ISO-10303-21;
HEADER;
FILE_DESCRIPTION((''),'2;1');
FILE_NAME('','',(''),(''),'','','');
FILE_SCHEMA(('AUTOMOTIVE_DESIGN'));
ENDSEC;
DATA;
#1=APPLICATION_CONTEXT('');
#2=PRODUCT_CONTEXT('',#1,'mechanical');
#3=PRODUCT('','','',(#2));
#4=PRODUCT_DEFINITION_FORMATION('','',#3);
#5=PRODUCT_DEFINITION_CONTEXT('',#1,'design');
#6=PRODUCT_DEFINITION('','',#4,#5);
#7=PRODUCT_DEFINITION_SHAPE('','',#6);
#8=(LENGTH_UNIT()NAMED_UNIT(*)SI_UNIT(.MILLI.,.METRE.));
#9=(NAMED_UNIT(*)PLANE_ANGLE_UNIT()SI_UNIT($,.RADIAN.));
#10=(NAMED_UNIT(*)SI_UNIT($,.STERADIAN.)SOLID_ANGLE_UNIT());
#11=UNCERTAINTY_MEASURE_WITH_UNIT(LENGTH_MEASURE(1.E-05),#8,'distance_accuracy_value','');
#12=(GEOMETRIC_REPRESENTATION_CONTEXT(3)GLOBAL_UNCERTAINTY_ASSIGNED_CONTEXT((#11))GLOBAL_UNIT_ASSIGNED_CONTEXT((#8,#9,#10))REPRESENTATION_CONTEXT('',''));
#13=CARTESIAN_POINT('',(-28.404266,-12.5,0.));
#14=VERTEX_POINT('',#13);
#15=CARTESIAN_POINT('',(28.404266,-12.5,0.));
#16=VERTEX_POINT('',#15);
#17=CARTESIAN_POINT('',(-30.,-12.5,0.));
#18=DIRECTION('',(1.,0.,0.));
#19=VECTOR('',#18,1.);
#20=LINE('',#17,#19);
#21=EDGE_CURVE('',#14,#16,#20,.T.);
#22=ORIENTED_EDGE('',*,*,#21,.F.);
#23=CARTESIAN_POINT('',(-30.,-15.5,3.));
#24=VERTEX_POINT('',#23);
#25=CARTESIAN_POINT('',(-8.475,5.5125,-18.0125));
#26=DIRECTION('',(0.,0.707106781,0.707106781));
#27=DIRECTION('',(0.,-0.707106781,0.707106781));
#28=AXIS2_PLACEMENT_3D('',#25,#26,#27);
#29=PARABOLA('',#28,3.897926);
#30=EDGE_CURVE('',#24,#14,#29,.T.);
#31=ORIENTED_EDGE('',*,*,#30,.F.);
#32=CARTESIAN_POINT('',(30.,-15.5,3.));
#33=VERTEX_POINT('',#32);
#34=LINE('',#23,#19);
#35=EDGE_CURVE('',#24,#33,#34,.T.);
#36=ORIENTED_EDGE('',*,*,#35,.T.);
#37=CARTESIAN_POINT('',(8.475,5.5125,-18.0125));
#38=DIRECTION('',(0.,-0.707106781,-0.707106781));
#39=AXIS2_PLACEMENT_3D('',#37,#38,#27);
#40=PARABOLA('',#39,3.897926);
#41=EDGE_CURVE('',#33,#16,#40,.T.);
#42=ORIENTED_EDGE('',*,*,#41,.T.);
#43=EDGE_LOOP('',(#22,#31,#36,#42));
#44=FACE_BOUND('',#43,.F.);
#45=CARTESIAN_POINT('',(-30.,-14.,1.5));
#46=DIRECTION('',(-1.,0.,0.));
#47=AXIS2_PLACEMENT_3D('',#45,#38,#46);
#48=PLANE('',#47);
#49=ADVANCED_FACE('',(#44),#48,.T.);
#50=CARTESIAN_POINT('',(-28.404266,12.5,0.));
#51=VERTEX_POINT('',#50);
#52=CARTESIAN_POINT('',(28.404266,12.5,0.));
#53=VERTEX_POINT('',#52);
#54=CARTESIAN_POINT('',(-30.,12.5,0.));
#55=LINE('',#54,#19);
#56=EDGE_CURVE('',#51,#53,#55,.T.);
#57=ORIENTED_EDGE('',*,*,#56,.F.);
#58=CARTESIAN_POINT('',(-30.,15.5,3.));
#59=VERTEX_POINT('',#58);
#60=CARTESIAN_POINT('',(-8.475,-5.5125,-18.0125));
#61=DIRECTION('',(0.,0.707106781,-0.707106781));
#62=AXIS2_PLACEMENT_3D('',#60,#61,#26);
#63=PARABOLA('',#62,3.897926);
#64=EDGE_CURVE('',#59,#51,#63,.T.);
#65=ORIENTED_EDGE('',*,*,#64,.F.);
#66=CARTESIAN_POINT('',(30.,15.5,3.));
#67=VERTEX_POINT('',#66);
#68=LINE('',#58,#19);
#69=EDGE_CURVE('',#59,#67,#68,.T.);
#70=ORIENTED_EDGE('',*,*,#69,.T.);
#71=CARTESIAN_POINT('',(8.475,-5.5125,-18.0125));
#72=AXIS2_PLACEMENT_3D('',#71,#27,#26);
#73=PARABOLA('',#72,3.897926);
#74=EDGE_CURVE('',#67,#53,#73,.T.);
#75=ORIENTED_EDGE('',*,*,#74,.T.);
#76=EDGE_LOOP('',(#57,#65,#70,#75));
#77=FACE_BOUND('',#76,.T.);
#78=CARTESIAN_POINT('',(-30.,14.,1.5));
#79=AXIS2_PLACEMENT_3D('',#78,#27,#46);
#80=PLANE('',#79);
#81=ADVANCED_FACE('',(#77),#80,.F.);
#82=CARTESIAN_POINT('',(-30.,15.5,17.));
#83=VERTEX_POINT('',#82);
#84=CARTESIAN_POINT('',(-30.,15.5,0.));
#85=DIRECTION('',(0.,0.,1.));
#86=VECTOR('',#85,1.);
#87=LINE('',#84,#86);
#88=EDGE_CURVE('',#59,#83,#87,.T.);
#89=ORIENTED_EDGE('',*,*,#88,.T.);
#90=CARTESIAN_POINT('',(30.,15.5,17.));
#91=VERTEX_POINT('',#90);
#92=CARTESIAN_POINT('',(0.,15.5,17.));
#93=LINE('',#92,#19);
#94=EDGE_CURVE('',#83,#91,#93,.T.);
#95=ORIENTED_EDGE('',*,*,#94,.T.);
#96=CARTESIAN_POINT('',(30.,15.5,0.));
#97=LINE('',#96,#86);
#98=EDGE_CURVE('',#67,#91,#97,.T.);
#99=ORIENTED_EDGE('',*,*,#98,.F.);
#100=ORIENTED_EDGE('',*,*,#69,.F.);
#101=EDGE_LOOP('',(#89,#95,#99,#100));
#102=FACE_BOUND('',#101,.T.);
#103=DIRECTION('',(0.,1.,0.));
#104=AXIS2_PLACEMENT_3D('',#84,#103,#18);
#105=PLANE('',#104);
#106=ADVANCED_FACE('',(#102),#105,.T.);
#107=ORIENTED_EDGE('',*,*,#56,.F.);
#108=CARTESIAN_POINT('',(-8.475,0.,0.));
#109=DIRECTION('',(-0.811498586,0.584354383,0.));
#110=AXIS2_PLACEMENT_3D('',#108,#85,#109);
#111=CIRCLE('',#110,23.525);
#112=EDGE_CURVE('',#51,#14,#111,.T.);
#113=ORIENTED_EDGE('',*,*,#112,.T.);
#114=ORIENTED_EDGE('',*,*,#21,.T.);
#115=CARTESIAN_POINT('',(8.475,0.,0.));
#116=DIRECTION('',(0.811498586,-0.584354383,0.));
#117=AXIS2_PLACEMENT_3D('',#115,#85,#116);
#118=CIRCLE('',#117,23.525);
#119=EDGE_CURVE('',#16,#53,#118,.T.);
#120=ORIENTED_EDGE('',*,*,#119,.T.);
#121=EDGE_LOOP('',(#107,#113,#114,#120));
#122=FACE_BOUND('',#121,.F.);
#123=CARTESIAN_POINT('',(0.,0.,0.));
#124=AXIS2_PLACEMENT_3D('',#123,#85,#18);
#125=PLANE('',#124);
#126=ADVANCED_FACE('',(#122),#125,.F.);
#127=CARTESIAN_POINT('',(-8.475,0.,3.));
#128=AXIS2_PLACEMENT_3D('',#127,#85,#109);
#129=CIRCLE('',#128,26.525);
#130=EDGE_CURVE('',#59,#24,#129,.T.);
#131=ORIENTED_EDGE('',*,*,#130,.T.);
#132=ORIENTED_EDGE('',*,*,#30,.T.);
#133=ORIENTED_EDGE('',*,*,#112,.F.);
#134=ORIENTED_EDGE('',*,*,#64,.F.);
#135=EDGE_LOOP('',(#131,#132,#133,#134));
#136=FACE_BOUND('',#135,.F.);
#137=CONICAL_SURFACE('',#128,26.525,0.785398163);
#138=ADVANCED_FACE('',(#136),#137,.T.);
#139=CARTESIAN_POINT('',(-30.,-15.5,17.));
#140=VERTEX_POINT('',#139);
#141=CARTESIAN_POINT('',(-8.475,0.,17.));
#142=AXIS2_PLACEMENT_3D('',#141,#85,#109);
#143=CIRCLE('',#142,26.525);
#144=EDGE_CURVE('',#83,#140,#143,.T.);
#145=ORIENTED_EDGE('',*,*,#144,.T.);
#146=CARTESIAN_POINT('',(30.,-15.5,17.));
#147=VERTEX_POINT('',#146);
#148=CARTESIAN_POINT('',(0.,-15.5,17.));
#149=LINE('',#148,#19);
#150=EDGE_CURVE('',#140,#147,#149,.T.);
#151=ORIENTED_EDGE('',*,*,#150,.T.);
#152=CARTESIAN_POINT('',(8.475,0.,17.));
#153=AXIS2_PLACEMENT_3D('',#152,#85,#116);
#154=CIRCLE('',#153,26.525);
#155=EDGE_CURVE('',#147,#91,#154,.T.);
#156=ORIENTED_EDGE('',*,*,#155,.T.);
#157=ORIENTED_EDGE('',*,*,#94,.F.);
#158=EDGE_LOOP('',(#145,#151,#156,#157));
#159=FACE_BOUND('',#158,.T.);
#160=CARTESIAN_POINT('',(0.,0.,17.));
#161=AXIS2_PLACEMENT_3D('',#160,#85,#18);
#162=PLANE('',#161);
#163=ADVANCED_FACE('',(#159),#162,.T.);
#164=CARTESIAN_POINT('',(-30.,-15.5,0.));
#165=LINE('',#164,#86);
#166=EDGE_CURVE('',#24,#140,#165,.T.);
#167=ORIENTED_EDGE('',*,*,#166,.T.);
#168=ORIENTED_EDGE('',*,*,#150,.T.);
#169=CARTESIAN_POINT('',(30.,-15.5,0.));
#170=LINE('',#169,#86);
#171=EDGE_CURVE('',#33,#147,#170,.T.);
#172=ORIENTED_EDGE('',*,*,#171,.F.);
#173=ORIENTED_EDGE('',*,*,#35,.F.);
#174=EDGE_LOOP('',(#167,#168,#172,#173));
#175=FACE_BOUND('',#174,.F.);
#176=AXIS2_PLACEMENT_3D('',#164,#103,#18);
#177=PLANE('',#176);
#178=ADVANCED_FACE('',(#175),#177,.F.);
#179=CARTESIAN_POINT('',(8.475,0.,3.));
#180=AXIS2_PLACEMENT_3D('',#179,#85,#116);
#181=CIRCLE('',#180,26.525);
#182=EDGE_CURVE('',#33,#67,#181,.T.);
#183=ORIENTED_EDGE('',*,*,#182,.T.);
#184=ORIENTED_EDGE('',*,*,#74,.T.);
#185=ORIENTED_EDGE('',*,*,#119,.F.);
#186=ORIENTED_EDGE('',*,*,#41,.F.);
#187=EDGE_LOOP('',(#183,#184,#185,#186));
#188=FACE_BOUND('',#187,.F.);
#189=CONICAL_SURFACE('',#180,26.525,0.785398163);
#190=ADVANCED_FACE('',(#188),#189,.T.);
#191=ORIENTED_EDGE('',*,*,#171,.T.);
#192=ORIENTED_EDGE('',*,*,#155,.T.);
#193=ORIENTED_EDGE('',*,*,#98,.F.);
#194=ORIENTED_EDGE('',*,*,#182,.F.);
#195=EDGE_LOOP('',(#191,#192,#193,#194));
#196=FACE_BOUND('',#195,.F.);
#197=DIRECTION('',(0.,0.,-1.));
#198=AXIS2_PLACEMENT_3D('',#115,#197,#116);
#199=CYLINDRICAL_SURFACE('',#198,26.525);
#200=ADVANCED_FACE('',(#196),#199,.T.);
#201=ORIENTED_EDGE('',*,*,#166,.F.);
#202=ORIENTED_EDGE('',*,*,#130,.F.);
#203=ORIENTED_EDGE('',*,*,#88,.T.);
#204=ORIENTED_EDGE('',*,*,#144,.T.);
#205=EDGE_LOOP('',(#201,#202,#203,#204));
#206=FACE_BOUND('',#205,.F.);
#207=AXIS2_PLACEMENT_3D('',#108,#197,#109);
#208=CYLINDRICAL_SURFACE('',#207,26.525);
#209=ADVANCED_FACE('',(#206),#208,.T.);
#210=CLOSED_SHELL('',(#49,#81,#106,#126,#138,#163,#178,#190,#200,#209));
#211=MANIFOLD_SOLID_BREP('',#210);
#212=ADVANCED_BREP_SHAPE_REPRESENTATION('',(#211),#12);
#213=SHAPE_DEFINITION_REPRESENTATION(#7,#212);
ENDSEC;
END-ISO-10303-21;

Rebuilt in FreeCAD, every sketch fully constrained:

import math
import FreeCAD as App
import Part
import Sketcher

V = App.Vector
Q = App.Units.Quantity


def edges_at(feature, points):
    """Names of the edges that pass closest to the given points."""
    edges = feature.Shape.Edges
    near = lambda p: min(range(len(edges)), key=lambda i: edges[i].distToShape(Part.Vertex(*p))[0])
    return sorted({f"Edge{near(p) + 1}" for p in points})

doc = App.newDocument("Part")
body = doc.addObject("PartDesign::Body", "Body")

sketch1 = doc.addObject("Sketcher::SketchObject", "Sketch")
body.addObject(sketch1)
sketch1.AttachmentSupport = (doc.XY_Plane, [""])
sketch1.MapMode = "FlatFace"
sketch1.addGeometry([
    Part.LineSegment(V(-30, -15.5, 0), V(30, -15.5, 0)),
    Part.ArcOfCircle(Part.Circle(V(8.475, 0, 0), V(0, 0, 1), 26.525), math.radians(-35.757393), math.radians(35.757393)),
    Part.LineSegment(V(30, 15.5, 0), V(-30, 15.5, 0)),
    Part.ArcOfCircle(Part.Circle(V(-8.475, 0, 0), V(0, 0, 1), 26.525), math.radians(144.242607), math.radians(215.757393)),
], False)
sketch1.addConstraint([
    Sketcher.Constraint("Coincident", 0, 2, 1, 1),
    Sketcher.Constraint("Coincident", 1, 2, 2, 1),
    Sketcher.Constraint("Coincident", 2, 2, 3, 1),
    Sketcher.Constraint("Coincident", 3, 2, 0, 1),
    Sketcher.Constraint("Horizontal", 0),
    Sketcher.Constraint("Horizontal", 2),
    Sketcher.Constraint("Equal", 1, 3),
    Sketcher.Constraint("Symmetric", 1, 3, 3, 3, -1, 1),
    Sketcher.Constraint("Symmetric", 0, 2, 1, 2, -1),
    Sketcher.Constraint("DistanceX", 0, 1, 0, 2, Q("60 mm")),
    Sketcher.Constraint("Radius", 1, Q("26.525 mm")),
    Sketcher.Constraint("DistanceY", 0, 2, 1, 2, Q("31 mm")),
])
pad1 = doc.addObject("PartDesign::Pad", "Pad")
body.addObject(pad1)
pad1.Profile = sketch1
pad1.Length = 17
doc.recompute()

chamfer = doc.addObject("PartDesign::Chamfer", "Chamfer")
body.addObject(chamfer)
chamfer.Base = (pad1, edges_at(pad1, [
    (0, -15.5, 0),
    (35, 0, 0),
    (0, 15.5, 0),
    (-35, 0, 0),
]))
chamfer.Size = 3

doc.recompute()
